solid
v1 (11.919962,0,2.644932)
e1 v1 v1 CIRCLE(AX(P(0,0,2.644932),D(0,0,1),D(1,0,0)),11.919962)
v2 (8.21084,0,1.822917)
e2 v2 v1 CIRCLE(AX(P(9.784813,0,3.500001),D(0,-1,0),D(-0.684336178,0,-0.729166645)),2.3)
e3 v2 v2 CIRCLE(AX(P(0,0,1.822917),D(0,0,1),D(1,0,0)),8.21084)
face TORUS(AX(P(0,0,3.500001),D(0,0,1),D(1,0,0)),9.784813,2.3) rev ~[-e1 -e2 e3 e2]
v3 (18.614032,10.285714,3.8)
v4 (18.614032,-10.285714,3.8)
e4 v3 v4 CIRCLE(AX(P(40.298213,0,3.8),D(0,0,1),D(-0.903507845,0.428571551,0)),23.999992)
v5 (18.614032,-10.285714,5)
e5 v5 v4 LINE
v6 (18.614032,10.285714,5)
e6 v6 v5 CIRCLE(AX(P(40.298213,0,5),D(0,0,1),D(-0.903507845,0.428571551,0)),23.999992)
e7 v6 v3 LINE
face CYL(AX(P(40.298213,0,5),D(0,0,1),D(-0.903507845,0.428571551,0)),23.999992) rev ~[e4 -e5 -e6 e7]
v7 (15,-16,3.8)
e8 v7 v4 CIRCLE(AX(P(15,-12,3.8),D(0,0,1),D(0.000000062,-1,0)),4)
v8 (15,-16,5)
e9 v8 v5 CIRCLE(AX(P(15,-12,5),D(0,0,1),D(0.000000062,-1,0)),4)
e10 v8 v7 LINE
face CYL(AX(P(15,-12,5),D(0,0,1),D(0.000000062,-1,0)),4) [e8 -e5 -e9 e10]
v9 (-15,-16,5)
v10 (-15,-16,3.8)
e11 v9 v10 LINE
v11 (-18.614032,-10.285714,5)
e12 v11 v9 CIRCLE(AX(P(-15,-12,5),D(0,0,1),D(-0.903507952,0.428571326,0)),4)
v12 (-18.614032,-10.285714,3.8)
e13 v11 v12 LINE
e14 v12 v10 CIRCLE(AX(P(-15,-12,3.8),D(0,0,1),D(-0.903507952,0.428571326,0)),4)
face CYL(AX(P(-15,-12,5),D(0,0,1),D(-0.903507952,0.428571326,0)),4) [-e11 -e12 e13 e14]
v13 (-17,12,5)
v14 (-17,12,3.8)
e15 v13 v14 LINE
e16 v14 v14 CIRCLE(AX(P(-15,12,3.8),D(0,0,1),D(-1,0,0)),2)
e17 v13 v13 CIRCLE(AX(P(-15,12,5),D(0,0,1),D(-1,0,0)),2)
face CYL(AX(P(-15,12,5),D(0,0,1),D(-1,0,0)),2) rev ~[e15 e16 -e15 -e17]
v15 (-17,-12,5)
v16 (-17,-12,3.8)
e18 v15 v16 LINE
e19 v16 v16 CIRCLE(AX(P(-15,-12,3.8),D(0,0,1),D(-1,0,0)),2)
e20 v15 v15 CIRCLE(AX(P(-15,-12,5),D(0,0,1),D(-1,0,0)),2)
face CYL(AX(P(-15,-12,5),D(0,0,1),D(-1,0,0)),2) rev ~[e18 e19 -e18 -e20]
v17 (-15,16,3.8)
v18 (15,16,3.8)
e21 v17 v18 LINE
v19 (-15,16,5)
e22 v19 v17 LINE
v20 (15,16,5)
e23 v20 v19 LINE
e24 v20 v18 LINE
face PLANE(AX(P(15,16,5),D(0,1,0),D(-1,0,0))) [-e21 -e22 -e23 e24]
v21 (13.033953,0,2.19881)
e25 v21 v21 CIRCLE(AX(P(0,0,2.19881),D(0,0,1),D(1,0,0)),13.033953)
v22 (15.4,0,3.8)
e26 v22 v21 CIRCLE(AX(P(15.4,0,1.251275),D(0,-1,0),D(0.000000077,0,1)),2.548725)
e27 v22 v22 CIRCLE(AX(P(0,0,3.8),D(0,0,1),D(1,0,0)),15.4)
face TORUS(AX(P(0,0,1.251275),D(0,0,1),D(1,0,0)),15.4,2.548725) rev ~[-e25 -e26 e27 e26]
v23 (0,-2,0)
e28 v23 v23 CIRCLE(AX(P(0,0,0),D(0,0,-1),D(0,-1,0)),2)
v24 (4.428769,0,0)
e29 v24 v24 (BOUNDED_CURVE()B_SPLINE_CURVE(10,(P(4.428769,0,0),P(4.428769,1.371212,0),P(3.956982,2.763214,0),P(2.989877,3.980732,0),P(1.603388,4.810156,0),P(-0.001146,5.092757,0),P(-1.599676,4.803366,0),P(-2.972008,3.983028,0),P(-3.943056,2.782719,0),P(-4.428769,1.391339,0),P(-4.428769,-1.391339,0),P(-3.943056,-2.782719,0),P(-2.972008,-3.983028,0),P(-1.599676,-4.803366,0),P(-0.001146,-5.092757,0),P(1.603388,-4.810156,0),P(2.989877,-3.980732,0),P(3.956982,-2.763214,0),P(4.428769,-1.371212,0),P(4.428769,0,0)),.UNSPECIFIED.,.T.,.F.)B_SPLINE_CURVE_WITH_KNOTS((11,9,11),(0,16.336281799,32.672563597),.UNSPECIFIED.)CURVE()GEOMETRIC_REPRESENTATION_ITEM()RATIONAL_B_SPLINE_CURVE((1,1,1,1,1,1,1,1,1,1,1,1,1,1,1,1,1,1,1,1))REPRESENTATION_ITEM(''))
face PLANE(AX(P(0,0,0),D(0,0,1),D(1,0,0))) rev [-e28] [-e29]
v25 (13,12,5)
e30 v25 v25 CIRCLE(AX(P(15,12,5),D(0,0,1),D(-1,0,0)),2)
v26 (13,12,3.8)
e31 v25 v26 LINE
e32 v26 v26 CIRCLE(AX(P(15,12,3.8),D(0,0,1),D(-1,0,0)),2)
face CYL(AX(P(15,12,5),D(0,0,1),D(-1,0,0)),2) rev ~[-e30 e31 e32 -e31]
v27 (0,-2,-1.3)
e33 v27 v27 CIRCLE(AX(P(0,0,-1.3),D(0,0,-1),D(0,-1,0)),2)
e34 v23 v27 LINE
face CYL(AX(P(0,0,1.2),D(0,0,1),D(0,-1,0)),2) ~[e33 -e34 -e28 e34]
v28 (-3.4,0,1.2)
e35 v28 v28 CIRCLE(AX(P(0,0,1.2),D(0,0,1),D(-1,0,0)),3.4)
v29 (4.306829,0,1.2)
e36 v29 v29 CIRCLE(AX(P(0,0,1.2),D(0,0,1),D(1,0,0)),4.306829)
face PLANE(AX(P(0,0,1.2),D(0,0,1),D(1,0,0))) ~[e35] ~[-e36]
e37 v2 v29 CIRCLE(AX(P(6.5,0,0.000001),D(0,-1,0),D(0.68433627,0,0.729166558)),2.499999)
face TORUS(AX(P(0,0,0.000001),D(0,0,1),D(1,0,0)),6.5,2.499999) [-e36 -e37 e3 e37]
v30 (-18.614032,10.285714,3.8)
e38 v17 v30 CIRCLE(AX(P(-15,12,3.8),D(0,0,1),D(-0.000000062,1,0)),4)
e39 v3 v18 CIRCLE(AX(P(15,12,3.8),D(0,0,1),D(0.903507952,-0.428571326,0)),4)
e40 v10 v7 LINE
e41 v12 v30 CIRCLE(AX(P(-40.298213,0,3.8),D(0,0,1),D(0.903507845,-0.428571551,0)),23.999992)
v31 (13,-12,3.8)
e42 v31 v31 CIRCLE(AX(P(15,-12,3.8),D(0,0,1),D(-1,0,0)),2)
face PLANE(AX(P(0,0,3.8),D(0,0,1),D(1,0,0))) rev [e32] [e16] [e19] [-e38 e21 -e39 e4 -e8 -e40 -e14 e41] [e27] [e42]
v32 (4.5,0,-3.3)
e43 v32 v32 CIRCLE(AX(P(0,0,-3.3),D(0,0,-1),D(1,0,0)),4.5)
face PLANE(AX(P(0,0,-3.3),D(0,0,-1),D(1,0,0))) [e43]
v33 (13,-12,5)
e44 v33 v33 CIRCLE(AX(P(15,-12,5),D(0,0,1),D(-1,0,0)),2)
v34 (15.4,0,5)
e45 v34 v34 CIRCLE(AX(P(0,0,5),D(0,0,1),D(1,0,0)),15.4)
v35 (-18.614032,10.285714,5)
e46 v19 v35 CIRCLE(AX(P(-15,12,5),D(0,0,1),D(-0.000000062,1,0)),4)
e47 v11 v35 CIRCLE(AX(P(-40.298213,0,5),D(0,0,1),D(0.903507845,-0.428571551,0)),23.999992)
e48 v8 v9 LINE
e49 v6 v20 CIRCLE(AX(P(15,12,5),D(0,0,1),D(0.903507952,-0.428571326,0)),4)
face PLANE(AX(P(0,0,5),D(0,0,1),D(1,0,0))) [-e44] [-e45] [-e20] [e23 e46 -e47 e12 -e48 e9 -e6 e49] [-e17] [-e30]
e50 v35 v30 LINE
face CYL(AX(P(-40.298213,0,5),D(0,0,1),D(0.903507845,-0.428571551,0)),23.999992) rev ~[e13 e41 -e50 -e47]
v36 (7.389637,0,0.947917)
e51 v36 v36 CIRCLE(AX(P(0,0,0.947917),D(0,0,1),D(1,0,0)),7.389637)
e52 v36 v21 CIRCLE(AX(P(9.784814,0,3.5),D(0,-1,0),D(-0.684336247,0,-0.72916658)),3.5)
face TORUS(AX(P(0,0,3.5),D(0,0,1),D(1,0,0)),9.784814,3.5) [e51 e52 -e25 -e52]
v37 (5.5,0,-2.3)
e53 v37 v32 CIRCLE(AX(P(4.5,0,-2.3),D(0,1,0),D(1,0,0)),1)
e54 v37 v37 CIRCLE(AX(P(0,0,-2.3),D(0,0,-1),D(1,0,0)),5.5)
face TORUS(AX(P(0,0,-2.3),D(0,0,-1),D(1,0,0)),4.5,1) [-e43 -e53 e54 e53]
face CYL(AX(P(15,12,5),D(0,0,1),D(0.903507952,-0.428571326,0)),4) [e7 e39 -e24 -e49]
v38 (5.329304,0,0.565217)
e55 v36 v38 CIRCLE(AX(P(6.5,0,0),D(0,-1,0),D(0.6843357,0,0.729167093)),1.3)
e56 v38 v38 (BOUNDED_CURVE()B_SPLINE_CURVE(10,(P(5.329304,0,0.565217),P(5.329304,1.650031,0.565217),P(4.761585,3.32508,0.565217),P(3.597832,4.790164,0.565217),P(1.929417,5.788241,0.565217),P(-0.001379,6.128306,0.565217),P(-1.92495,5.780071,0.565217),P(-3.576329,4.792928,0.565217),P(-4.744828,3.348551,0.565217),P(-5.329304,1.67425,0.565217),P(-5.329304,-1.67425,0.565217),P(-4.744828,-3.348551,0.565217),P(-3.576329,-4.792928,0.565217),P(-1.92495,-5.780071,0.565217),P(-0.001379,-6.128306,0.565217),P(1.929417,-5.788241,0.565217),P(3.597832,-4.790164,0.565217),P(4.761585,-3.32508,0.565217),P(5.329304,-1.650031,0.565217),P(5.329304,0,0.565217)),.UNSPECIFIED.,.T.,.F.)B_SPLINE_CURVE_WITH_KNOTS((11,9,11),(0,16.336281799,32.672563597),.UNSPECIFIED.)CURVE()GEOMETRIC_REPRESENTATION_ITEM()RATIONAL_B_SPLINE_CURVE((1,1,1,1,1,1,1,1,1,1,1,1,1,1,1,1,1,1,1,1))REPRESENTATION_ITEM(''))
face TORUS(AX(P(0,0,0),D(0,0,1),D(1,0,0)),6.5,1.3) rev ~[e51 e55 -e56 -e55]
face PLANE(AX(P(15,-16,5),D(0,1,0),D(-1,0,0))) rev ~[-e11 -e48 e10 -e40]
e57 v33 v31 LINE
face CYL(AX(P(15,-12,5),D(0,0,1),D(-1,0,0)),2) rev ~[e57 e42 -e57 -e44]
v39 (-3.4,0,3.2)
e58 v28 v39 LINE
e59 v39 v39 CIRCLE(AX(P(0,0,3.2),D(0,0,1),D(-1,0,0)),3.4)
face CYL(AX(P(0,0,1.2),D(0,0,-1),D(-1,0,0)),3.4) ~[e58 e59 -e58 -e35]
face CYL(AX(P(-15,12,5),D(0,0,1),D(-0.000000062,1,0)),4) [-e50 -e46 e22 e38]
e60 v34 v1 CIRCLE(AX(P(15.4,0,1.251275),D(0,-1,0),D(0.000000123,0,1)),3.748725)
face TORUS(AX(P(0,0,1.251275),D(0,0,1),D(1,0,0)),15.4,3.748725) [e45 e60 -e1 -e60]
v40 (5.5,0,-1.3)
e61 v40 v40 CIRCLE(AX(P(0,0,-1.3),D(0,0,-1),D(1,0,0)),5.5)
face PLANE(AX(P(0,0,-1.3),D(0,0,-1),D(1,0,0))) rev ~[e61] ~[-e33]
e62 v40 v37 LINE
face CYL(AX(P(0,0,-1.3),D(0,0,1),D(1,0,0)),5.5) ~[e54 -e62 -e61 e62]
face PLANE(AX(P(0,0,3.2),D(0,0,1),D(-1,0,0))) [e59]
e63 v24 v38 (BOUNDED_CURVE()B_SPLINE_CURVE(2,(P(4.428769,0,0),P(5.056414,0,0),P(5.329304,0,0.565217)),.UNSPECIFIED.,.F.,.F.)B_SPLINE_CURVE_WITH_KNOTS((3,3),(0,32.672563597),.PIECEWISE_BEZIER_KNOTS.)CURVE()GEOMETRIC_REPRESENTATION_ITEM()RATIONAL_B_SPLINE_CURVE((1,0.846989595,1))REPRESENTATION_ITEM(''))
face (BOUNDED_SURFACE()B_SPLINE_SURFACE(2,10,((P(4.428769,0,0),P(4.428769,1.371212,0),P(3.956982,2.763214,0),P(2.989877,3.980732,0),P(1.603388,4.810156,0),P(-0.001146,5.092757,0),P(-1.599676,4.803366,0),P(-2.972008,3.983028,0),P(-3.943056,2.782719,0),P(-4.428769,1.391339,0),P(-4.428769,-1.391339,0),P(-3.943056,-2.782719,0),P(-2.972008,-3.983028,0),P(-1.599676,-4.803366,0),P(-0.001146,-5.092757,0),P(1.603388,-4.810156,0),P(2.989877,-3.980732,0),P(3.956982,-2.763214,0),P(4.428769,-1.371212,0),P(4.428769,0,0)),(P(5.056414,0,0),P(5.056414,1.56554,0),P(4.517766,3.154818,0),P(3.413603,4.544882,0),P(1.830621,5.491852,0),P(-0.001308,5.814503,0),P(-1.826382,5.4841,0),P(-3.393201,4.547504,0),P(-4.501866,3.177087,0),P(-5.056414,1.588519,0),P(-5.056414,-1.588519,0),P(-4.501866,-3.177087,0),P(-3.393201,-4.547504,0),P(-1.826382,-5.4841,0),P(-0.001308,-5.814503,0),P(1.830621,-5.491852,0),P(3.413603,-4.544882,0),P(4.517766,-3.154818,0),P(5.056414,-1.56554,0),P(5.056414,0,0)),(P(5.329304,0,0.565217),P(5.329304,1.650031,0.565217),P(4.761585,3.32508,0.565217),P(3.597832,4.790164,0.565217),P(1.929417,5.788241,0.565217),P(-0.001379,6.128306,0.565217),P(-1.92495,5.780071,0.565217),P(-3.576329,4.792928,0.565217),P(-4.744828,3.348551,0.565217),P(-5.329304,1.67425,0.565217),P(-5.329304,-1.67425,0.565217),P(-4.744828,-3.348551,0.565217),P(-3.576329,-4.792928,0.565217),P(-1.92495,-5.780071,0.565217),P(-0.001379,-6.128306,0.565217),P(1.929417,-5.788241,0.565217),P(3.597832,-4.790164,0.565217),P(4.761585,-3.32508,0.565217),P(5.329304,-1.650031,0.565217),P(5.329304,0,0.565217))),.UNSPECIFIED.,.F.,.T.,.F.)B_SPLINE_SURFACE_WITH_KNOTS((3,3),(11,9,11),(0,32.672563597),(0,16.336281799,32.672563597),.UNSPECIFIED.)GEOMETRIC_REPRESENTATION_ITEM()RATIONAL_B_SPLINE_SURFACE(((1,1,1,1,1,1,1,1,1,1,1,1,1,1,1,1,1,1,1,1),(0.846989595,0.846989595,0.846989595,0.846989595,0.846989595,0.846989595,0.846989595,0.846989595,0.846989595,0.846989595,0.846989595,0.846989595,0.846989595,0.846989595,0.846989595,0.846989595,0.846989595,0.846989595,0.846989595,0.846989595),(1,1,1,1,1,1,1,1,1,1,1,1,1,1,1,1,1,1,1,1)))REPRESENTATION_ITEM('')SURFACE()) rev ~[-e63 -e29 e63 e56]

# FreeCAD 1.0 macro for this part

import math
import FreeCAD as App
import Part
import Sketcher


def edges_at(feature, points):
    """Names of the edges that pass closest to the given points."""
    edges = feature.Shape.Edges
    near = lambda p: min(range(len(edges)), key=lambda i: edges[i].distToShape(Part.Vertex(*p))[0])
    return sorted({f"Edge{near(p) + 1}" for p in points})

doc = App.newDocument("Part")
body = doc.addObject("PartDesign::Body", "Body")

# Sketch on XZ plane
sketch1 = body.newObject("Sketcher::SketchObject", "Sketch")
sketch1.AttachmentSupport = (doc.getObject("XZ_Plane"), [""])
sketch1.MapMode = "FlatFace"
sketch1.addGeometry(Part.LineSegment(App.Vector(2, 0, 0), App.Vector(5.2, 0, 0)), False)
sketch1.addGeometry(Part.ArcOfCircle(Part.Circle(App.Vector(6.5, 0, 0), App.Vector(0, 0, 1), 1.3), math.radians(47), math.radians(180)), False)
sketch1.addGeometry(Part.ArcOfCircle(Part.Circle(App.Vector(9.8, 3.5, 0), App.Vector(0, 0, 1), 3.5), math.radians(-133), math.radians(-22)), False)
sketch1.addGeometry(Part.ArcOfCircle(Part.Circle(App.Vector(15.4, 1.3, 0), App.Vector(0, 0, 1), 2.5), math.radians(90), math.radians(158)), False)
sketch1.addGeometry(Part.LineSegment(App.Vector(15.4, 3.8, 0), App.Vector(25, 3.8, 0)), False)
sketch1.addGeometry(Part.LineSegment(App.Vector(25, 3.8, 0), App.Vector(25, 5, 0)), False)
sketch1.addGeometry(Part.LineSegment(App.Vector(25, 5, 0), App.Vector(15.4, 5, 0)), False)
sketch1.addGeometry(Part.ArcOfCircle(Part.Circle(App.Vector(15.4, 1.3, 0), App.Vector(0, 0, 1), 3.7), math.radians(90), math.radians(158)), False)
sketch1.addGeometry(Part.ArcOfCircle(Part.Circle(App.Vector(9.8, 3.5, 0), App.Vector(0, 0, 1), 2.3), math.radians(-133), math.radians(-22)), False)
sketch1.addGeometry(Part.ArcOfCircle(Part.Circle(App.Vector(6.5, 0, 0), App.Vector(0, 0, 1), 2.5), math.radians(47), math.radians(151)), False)
sketch1.addGeometry(Part.LineSegment(App.Vector(4.3, 1.2, 0), App.Vector(2, 1.2, 0)), False)
sketch1.addGeometry(Part.LineSegment(App.Vector(2, 1.2, 0), App.Vector(2, 0, 0)), False)
sketch1.addConstraint(Sketcher.Constraint("Coincident", 0, 2, 1, 2))
sketch1.addConstraint(Sketcher.Constraint("Tangent", 1, 1, 2, 1))
sketch1.addConstraint(Sketcher.Constraint("Tangent", 2, 2, 3, 2))
sketch1.addConstraint(Sketcher.Constraint("Tangent", 3, 1, 4, 1))
sketch1.addConstraint(Sketcher.Constraint("Coincident", 4, 2, 5, 1))
sketch1.addConstraint(Sketcher.Constraint("Coincident", 5, 2, 6, 1))
sketch1.addConstraint(Sketcher.Constraint("Tangent", 6, 2, 7, 1))
sketch1.addConstraint(Sketcher.Constraint("Tangent", 7, 2, 8, 2))
sketch1.addConstraint(Sketcher.Constraint("Tangent", 8, 1, 9, 1))
sketch1.addConstraint(Sketcher.Constraint("Coincident", 9, 2, 10, 1))
sketch1.addConstraint(Sketcher.Constraint("Coincident", 10, 2, 11, 1))
sketch1.addConstraint(Sketcher.Constraint("Coincident", 11, 2, 0, 1))
sketch1.addConstraint(Sketcher.Constraint("Horizontal", 0))
sketch1.addConstraint(Sketcher.Constraint("Horizontal", 4))
sketch1.addConstraint(Sketcher.Constraint("Vertical", 5))
sketch1.addConstraint(Sketcher.Constraint("Horizontal", 6))
sketch1.addConstraint(Sketcher.Constraint("Horizontal", 10))
sketch1.addConstraint(Sketcher.Constraint("Vertical", 11))
sketch1.addConstraint(Sketcher.Constraint("Coincident", 7, 3, 3, 3))
sketch1.addConstraint(Sketcher.Constraint("Coincident", 8, 3, 2, 3))
sketch1.addConstraint(Sketcher.Constraint("Coincident", 9, 3, 1, 3))
sketch1.addConstraint(Sketcher.Constraint("PointOnObject", 1, 3, -1))
sketch1.addConstraint(Sketcher.Constraint("PointOnObject", 0, 2, -1))
sketch1.addConstraint(Sketcher.Constraint("Equal", 5, 11))
sketch1.addConstraint(Sketcher.Constraint("Radius", 1, 1.3))
sketch1.addConstraint(Sketcher.Constraint("Radius", 2, 3.5))
sketch1.addConstraint(Sketcher.Constraint("Radius", 8, 2.3))
sketch1.addConstraint(Sketcher.Constraint("DistanceX", 0, 1, 0, 2, 3.2))
sketch1.addConstraint(Sketcher.Constraint("DistanceX", 4, 1, 4, 2, 9.6))
sketch1.addConstraint(Sketcher.Constraint("DistanceX", -1, 1, 4, 2, 25.0))
sketch1.addConstraint(Sketcher.Constraint("DistanceY", -1, 1, 5, 2, 5.0))
sketch1.addConstraint(Sketcher.Constraint("DistanceX", -1, 1, 10, 2, 2.0))
sketch1.addConstraint(Sketcher.Constraint("DistanceY", -1, 1, 2, 3, 3.5))
revolution = body.newObject("PartDesign::Revolution", "Revolution")
revolution.Profile = sketch1
revolution.ReferenceAxis = (sketch1, ["V_Axis"])
revolution.Angle = 360

# Sketch on XY plane
sketch2 = body.newObject("Sketcher::SketchObject", "Sketch001")
sketch2.AttachmentSupport = (doc.getObject("XY_Plane"), [""])
sketch2.MapMode = "FlatFace"
sketch2.AttachmentOffset = App.Placement(App.Vector(0, 0, 5), App.Rotation())
sketch2.addGeometry(Part.Circle(App.Vector(0, 0, 0), App.Vector(0, 0, 1), 28), False)
sketch2.addGeometry(Part.ArcOfCircle(Part.Circle(App.Vector(15, -12, 0), App.Vector(0, 0, 1), 4), math.radians(-90), math.radians(25)), False)
sketch2.addGeometry(Part.LineSegment(App.Vector(15, -16, 0), App.Vector(-15, -16, 0)), False)
sketch2.addGeometry(Part.ArcOfCircle(Part.Circle(App.Vector(-15, -12, 0), App.Vector(0, 0, 1), 4), math.radians(155), math.radians(270)), False)
sketch2.addGeometry(Part.ArcOfCircle(Part.Circle(App.Vector(-40.3, 0, 0), App.Vector(0, 0, 1), 24), math.radians(-25), math.radians(25)), False)
sketch2.addGeometry(Part.ArcOfCircle(Part.Circle(App.Vector(-15, 12, 0), App.Vector(0, 0, 1), 4), math.radians(90), math.radians(205)), False)
sketch2.addGeometry(Part.LineSegment(App.Vector(-15, 16, 0), App.Vector(15, 16, 0)), False)
sketch2.addGeometry(Part.ArcOfCircle(Part.Circle(App.Vector(15, 12, 0), App.Vector(0, 0, 1), 4), math.radians(-25), math.radians(90)), False)
sketch2.addGeometry(Part.ArcOfCircle(Part.Circle(App.Vector(40.3, 0, 0), App.Vector(0, 0, 1), 24), math.radians(155), math.radians(205)), False)
sketch2.addConstraint(Sketcher.Constraint("Tangent", 1, 1, 2, 1))
sketch2.addConstraint(Sketcher.Constraint("Tangent", 2, 2, 3, 2))
sketch2.addConstraint(Sketcher.Constraint("Tangent", 3, 1, 4, 1))
sketch2.addConstraint(Sketcher.Constraint("Tangent", 4, 2, 5, 2))
sketch2.addConstraint(Sketcher.Constraint("Tangent", 5, 1, 6, 1))
sketch2.addConstraint(Sketcher.Constraint("Tangent", 6, 2, 7, 2))
sketch2.addConstraint(Sketcher.Constraint("Tangent", 7, 1, 8, 1))
sketch2.addConstraint(Sketcher.Constraint("Tangent", 8, 2, 1, 2))
sketch2.addConstraint(Sketcher.Constraint("Horizontal", 2))
sketch2.addConstraint(Sketcher.Constraint("Horizontal", 6))
sketch2.addConstraint(Sketcher.Constraint("Coincident", 0, 3, -1, 1))
sketch2.addConstraint(Sketcher.Constraint("Equal", 1, 3))
sketch2.addConstraint(Sketcher.Constraint("Equal", 3, 5))
sketch2.addConstraint(Sketcher.Constraint("Equal", 5, 7))
sketch2.addConstraint(Sketcher.Constraint("Equal", 4, 8))
sketch2.addConstraint(Sketcher.Constraint("Symmetric", 1, 3, 5, 3, -1, 1))
sketch2.addConstraint(Sketcher.Constraint("Symmetric", 4, 3, 8, 3, -2))
sketch2.addConstraint(Sketcher.Constraint("Diameter", 0, 56.0))
sketch2.addConstraint(Sketcher.Constraint("Radius", 1, 4.0))
sketch2.addConstraint(Sketcher.Constraint("DistanceX", 2, 2, 2, 1, 30.0))
sketch2.addConstraint(Sketcher.Constraint("DistanceY", 1, 3, -1, 1, 12.0))
sketch2.addConstraint(Sketcher.Constraint("Radius", 4, 23.999992))
pocket1 = body.newObject("PartDesign::Pocket", "Pocket")
pocket1.Profile = sketch2
pocket1.Type = "ThroughAll"

# Sketch on XY plane
sketch3 = body.newObject("Sketcher::SketchObject", "Sketch002")
sketch3.AttachmentSupport = (doc.getObject("XY_Plane"), [""])
sketch3.MapMode = "FlatFace"
sketch3.AttachmentOffset = App.Placement(App.Vector(0, 0, 5), App.Rotation())
sketch3.addGeometry(Part.Circle(App.Vector(15, -12, 0), App.Vector(0, 0, 1), 2), False)
sketch3.addGeometry(Part.Circle(App.Vector(-15, -12, 0), App.Vector(0, 0, 1), 2), False)
sketch3.addGeometry(Part.Circle(App.Vector(15, 12, 0), App.Vector(0, 0, 1), 2), False)
sketch3.addGeometry(Part.Circle(App.Vector(-15, 12, 0), App.Vector(0, 0, 1), 2), False)
sketch3.addConstraint(Sketcher.Constraint("Equal", 0, 1))
sketch3.addConstraint(Sketcher.Constraint("Equal", 1, 2))
sketch3.addConstraint(Sketcher.Constraint("Equal", 2, 3))
sketch3.addConstraint(Sketcher.Constraint("Symmetric", 1, 3, 2, 3, -1, 1))
sketch3.addConstraint(Sketcher.Constraint("Symmetric", 0, 3, 3, 3, -1, 1))
sketch3.addConstraint(Sketcher.Constraint("Symmetric", 0, 3, 1, 3, -2))
sketch3.addConstraint(Sketcher.Constraint("Diameter", 0, 4.0))
sketch3.addConstraint(Sketcher.Constraint("DistanceX", -1, 1, 0, 3, 15.0))
sketch3.addConstraint(Sketcher.Constraint("DistanceY", 0, 3, -1, 1, 12.0))
pocket2 = body.newObject("PartDesign::Pocket", "Pocket001")
pocket2.Profile = sketch3
pocket2.Type = "ThroughAll"
doc.recompute()

fillet = body.newObject("PartDesign::Fillet", "Fillet")
fillet.Base = (pocket2, edges_at(pocket2, [(-5.2, 0, 0)]))
fillet.Radius = 1

# Sketch on XY plane
sketch4 = body.newObject("Sketcher::SketchObject", "Sketch003")
sketch4.AttachmentSupport = (doc.getObject("XY_Plane"), [""])
sketch4.MapMode = "FlatFace"
sketch4.AttachmentOffset = App.Placement(App.Vector(0, 0, 1.2), App.Rotation())
sketch4.addGeometry(Part.Circle(App.Vector(0, 0, 0), App.Vector(0, 0, 1), 3.4), False)
sketch4.addConstraint(Sketcher.Constraint("Coincident", 0, 3, -1, 1))
sketch4.addConstraint(Sketcher.Constraint("Diameter", 0, 6.8))
pad1 = body.newObject("PartDesign::Pad", "Pad")
pad1.Profile = sketch4
pad1.Length = 2

# Sketch on XY plane
sketch5 = body.newObject("Sketcher::SketchObject", "Sketch004")
sketch5.AttachmentSupport = (doc.getObject("XY_Plane"), [""])
sketch5.MapMode = "FlatFace"
sketch5.AttachmentOffset = App.Placement(App.Vector(0, 0, 1.2), App.Rotation())
sketch5.addGeometry(Part.Circle(App.Vector(0, 0, 0), App.Vector(0, 0, 1), 2), False)
sketch5.addConstraint(Sketcher.Constraint("Coincident", 0, 3, -1, 1))
sketch5.addConstraint(Sketcher.Constraint("Diameter", 0, 4.0))
pad2 = body.newObject("PartDesign::Pad", "Pad001")
pad2.Profile = sketch5
pad2.Length = 2.5
pad2.Reversed = True

# Sketch on XY plane
sketch6 = body.newObject("Sketcher::SketchObject", "Sketch005")
sketch6.AttachmentSupport = (doc.getObject("XY_Plane"), [""])
sketch6.MapMode = "FlatFace"
sketch6.AttachmentOffset = App.Placement(App.Vector(0, 0, -1.3), App.Rotation())
sketch6.addGeometry(Part.Circle(App.Vector(0, 0, 0), App.Vector(0, 0, 1), 6), False)
sketch6.addConstraint(Sketcher.Constraint("Coincident", 0, 3, -1, 1))
sketch6.addConstraint(Sketcher.Constraint("Diameter", 0, 11.0))
pad3 = body.newObject("PartDesign::Pad", "Pad002")
pad3.Profile = sketch6
pad3.Length = 2
pad3.Reversed = True
doc.recompute()

fillet2 = body.newObject("PartDesign::Fillet", "Fillet001")
fillet2.Base = (pad3, edges_at(pad3, [(-5.5, 0, -3.3)]))
fillet2.Radius = 1

doc.recompute()
